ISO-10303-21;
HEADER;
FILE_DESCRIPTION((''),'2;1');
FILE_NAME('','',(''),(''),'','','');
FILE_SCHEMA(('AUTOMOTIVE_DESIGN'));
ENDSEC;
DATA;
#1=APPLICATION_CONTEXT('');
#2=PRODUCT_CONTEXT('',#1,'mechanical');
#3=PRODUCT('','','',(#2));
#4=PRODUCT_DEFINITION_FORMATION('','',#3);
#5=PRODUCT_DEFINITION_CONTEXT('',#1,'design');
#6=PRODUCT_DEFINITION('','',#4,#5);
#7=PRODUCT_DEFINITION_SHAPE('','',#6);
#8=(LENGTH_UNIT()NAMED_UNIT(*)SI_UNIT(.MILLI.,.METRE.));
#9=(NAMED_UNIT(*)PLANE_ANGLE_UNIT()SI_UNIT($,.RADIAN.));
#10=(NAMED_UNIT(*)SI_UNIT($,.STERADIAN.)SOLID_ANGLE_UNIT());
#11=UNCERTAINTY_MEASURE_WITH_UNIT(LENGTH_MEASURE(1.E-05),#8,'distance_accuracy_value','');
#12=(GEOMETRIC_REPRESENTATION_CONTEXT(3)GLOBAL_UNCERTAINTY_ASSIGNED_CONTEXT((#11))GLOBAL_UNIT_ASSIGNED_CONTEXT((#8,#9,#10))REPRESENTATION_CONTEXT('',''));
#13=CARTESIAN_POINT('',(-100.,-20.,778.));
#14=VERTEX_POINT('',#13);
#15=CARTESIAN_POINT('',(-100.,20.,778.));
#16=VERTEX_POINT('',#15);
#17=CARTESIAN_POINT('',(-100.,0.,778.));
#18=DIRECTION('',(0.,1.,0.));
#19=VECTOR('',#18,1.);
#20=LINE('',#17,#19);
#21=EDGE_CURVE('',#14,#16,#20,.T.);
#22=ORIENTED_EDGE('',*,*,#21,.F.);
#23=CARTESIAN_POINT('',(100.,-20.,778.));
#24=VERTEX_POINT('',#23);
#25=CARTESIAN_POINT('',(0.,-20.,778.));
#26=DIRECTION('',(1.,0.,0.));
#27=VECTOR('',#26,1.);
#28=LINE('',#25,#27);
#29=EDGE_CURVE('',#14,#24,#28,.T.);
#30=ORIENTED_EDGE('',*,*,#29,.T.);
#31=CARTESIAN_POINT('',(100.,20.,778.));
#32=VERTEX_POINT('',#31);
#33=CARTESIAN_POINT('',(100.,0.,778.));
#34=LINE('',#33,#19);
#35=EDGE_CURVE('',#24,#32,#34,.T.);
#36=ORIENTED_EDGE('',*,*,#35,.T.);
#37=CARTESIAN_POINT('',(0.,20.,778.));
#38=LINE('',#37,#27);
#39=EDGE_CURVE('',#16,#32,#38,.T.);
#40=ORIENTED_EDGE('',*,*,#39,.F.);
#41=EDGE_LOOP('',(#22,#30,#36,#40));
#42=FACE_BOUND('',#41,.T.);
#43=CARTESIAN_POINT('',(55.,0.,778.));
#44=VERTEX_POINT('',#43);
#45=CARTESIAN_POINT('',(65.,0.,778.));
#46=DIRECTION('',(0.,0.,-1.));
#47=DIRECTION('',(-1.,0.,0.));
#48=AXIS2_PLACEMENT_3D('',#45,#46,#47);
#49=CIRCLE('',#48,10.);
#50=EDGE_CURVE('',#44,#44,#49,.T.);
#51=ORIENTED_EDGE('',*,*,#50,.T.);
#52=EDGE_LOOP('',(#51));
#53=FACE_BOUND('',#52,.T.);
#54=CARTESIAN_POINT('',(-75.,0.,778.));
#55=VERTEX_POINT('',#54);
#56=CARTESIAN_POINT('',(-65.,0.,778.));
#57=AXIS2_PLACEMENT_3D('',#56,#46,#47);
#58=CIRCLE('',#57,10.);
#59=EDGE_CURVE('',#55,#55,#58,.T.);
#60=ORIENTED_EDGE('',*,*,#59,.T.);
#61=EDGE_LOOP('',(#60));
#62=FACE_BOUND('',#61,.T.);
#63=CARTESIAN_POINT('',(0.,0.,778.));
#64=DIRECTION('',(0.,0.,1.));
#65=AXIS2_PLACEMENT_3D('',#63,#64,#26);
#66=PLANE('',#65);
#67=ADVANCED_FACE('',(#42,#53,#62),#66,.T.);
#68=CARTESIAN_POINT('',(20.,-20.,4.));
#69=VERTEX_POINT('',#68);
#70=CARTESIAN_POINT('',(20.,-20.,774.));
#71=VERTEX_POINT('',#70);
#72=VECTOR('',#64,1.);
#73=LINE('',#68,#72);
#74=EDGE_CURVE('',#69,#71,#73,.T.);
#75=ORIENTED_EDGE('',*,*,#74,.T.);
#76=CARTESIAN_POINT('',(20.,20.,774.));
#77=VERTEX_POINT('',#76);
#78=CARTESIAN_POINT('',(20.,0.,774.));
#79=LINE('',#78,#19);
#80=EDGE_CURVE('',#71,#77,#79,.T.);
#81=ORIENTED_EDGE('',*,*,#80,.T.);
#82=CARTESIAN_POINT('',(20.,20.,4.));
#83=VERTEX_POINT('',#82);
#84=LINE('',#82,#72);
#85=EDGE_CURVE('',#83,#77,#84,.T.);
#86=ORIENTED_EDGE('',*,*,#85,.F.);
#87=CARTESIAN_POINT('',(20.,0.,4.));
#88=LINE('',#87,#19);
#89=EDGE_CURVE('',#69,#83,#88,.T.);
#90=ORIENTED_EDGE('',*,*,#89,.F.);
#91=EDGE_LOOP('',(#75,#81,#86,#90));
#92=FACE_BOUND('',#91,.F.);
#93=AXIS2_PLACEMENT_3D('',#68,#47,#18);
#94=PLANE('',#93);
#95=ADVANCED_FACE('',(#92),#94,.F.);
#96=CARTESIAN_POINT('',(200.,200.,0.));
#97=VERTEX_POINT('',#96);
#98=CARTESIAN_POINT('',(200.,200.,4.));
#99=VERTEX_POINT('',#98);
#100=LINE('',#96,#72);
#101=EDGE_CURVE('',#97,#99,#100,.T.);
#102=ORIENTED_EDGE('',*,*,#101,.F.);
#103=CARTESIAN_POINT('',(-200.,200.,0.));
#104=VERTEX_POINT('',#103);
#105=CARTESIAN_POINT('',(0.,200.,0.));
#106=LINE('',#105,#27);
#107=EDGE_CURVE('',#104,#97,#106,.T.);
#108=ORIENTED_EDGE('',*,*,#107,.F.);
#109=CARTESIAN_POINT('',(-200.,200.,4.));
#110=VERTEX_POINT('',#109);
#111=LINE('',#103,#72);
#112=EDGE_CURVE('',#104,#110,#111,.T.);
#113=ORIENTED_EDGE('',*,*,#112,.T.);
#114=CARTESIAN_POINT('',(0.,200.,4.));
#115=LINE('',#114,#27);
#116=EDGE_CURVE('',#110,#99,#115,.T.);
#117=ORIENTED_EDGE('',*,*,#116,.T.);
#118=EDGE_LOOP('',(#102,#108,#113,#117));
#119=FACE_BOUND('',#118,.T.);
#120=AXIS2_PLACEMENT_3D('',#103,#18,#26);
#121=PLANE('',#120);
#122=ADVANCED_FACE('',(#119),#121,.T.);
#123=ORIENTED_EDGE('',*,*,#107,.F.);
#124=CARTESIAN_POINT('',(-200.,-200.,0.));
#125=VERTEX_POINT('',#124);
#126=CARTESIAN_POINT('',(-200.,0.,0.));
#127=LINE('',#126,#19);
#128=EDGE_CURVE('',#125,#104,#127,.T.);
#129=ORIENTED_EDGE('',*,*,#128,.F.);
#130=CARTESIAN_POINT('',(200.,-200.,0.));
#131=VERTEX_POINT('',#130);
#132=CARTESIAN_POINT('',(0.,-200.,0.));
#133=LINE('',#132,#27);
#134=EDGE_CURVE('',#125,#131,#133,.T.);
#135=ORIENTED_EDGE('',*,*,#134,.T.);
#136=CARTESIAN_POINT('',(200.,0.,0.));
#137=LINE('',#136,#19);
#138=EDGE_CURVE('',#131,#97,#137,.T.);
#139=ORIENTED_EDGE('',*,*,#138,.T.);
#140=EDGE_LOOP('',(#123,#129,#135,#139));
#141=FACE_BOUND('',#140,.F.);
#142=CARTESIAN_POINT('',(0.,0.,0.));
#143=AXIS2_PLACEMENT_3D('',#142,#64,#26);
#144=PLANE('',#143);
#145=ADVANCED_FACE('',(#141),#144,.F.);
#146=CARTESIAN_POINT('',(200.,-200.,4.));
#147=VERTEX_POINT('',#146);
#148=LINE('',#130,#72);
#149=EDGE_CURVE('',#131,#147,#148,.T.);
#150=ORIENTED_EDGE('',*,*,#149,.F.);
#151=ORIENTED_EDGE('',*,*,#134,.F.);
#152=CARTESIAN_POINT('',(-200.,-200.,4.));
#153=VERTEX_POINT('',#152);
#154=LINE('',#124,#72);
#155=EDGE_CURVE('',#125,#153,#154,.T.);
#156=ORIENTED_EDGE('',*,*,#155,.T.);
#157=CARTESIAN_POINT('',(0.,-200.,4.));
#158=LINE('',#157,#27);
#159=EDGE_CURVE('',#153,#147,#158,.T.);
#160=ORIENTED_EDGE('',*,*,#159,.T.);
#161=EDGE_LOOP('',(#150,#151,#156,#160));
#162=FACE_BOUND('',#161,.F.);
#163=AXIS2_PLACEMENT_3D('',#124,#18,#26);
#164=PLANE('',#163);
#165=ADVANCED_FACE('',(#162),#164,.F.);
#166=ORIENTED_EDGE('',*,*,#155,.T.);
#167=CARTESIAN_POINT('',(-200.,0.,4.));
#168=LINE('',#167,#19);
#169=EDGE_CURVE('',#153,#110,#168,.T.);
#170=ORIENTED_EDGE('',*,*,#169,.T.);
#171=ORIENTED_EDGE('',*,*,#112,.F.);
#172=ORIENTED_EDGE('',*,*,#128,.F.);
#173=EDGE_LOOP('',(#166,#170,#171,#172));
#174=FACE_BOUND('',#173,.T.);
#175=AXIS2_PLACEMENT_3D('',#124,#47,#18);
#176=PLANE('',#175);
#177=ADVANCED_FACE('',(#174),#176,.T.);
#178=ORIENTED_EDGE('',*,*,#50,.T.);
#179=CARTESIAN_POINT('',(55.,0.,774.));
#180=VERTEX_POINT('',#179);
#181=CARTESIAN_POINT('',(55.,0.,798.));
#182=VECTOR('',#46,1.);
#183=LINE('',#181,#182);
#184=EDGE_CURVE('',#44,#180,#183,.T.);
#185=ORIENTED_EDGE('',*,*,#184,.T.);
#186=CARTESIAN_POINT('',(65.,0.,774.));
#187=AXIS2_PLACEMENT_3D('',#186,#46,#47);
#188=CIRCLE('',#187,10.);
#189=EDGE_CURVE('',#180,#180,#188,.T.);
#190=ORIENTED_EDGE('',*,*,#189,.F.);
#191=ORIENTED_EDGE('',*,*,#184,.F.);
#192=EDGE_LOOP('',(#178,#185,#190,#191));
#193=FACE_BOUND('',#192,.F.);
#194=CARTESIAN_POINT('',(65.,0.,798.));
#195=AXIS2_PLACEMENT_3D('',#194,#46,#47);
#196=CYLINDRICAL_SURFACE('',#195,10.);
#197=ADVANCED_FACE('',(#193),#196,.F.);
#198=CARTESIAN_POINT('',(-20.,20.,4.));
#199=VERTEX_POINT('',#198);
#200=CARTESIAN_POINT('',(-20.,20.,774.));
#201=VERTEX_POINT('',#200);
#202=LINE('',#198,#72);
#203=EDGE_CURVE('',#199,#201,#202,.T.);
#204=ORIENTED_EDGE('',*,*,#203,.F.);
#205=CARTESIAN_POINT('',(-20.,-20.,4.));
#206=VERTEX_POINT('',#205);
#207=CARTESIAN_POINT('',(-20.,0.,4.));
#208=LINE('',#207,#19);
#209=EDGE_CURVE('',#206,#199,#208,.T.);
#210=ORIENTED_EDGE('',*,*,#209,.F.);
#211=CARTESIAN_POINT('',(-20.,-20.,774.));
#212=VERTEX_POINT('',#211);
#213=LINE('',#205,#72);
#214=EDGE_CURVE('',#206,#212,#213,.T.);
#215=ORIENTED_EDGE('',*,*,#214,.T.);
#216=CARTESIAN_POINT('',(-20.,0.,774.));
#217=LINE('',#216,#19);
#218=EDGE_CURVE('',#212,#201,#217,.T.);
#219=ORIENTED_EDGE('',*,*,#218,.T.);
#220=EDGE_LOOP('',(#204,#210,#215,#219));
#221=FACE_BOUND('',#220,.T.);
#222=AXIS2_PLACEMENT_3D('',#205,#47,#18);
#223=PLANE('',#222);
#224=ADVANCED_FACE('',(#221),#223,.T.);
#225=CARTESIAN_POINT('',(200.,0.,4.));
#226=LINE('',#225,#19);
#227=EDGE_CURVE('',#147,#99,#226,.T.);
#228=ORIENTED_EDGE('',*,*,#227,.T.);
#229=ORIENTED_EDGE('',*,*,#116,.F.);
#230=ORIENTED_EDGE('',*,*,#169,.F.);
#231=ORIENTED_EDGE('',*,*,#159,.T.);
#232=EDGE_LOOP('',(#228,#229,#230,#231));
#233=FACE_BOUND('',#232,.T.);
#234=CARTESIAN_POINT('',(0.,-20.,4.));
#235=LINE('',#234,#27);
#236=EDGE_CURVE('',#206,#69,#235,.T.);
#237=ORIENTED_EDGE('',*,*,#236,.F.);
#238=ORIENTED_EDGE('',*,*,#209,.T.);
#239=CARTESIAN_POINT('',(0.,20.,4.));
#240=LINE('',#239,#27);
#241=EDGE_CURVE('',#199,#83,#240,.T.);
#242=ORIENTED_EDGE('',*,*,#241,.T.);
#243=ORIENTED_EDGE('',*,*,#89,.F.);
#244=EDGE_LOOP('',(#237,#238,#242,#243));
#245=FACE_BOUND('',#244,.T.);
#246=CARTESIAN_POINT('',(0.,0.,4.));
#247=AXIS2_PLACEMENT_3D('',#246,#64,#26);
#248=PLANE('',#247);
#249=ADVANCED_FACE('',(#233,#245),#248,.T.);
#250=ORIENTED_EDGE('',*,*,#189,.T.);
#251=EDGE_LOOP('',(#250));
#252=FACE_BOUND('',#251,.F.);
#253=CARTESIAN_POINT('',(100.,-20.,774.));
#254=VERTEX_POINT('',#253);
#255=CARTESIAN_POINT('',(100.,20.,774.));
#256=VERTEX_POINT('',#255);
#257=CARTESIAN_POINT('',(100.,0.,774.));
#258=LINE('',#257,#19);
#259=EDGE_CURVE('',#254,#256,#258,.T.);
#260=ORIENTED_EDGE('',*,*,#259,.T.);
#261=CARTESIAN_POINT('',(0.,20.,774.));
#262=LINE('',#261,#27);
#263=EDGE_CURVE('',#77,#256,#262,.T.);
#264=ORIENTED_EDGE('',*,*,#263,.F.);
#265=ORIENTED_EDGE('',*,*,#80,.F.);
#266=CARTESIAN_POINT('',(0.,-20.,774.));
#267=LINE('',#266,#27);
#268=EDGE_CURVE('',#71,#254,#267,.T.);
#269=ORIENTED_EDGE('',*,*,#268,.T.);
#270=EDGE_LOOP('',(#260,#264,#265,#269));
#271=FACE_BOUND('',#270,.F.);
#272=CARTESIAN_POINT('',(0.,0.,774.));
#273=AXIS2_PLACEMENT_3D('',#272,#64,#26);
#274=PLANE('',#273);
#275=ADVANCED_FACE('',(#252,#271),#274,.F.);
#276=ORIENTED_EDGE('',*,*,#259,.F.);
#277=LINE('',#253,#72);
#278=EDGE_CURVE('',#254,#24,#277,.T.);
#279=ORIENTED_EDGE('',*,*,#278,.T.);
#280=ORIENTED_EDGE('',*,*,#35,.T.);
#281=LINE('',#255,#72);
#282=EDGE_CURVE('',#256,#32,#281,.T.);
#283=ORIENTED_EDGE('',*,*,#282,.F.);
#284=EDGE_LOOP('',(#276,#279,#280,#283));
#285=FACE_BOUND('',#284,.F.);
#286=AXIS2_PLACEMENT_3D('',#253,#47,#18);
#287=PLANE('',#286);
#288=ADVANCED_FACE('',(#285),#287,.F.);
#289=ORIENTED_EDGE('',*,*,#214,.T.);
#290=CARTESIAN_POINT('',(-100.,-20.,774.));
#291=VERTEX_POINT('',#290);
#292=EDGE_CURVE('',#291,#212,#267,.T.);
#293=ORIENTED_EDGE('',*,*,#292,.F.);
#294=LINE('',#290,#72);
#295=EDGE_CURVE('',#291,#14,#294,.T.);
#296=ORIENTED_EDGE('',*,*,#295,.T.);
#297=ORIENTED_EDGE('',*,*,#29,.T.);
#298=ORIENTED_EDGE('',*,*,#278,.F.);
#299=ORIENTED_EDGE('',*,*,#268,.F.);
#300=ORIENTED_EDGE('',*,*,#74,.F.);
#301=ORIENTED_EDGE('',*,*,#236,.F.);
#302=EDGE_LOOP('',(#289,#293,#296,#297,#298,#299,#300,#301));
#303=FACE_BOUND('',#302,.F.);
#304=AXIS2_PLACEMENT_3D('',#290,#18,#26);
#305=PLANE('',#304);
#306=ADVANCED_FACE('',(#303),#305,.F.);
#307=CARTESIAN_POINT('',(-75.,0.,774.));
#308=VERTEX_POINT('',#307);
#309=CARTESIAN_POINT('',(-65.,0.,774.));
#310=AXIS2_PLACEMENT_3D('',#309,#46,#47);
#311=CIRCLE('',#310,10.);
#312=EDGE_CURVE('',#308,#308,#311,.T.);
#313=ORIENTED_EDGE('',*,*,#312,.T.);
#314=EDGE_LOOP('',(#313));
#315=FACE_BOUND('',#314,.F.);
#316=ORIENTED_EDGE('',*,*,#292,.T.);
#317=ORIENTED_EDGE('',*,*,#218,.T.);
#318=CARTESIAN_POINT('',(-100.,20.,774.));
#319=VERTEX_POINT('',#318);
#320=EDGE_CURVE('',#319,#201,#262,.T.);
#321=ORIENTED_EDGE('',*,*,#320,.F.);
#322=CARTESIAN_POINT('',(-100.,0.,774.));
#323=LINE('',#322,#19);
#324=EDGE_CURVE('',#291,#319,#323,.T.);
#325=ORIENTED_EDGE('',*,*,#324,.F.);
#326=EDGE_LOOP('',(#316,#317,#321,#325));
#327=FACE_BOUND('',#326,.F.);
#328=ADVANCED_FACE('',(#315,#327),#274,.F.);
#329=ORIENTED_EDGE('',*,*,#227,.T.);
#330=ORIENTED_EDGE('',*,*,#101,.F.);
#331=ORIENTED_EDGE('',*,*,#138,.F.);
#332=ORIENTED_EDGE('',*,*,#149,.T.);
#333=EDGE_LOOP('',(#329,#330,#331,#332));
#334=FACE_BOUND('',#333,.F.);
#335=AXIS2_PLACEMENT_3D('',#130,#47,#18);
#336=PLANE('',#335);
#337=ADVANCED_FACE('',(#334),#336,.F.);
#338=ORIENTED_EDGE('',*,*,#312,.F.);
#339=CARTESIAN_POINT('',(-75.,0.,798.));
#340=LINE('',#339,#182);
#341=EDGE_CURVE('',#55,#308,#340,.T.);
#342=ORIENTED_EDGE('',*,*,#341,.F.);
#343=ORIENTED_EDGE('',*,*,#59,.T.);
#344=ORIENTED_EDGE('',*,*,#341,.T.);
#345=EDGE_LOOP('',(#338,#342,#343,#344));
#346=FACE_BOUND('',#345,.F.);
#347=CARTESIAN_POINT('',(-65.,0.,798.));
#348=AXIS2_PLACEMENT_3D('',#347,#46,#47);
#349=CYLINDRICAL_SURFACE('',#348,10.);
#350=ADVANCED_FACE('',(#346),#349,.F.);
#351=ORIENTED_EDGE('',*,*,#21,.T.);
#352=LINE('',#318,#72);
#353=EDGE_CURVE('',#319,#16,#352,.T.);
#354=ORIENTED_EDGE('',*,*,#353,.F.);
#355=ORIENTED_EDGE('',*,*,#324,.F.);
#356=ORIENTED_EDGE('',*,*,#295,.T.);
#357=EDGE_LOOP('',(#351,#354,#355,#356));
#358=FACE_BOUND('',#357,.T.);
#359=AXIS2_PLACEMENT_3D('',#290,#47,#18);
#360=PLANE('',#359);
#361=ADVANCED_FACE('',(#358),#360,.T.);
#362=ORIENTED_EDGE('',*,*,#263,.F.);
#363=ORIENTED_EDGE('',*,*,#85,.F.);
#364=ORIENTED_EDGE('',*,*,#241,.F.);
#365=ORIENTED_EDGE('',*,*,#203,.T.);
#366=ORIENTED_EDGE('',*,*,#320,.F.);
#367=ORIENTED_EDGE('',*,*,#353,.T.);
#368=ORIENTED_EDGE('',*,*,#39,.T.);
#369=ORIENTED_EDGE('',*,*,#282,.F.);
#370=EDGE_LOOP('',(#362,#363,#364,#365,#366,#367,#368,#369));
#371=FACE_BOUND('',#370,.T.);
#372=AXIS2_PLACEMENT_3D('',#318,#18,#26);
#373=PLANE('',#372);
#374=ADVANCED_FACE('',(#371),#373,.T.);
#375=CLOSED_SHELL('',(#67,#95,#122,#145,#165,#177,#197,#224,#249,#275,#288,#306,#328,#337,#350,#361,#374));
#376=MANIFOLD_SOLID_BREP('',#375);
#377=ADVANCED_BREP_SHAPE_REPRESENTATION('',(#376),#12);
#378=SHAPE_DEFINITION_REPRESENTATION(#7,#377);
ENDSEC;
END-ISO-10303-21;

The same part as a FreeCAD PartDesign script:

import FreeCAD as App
import Part
import Sketcher

V = App.Vector


def add_polygon(sketch, points):
    """Adds a closed chain of lines whose ends are joined by coincident constraints."""
    first, n = sketch.GeometryCount, len(points)
    for a, b in zip(points, points[1:] + points[:1]):
        sketch.addGeometry(Part.LineSegment(App.Vector(*a, 0), App.Vector(*b, 0)), False)
    for i in range(n):
        sketch.addConstraint(Sketcher.Constraint("Coincident", first + i, 2, first + (i + 1) % n, 1))

doc = App.newDocument("Part")
body = doc.addObject("PartDesign::Body", "Body")

# Sketch on XY plane
sketch1 = doc.addObject("Sketcher::SketchObject", "Sketch")
body.addObject(sketch1)
sketch1.AttachmentSupport = (doc.XY_Plane, [""])
sketch1.MapMode = "FlatFace"
add_polygon(sketch1, [(-200, 200), (-200, -200), (200, -200), (200, 200)])  # lines 0-3
sketch1.addConstraint([
    Sketcher.Constraint("Vertical", 0),
    Sketcher.Constraint("Horizontal", 1),
    Sketcher.Constraint("Vertical", 2),
    Sketcher.Constraint("Horizontal", 3),
    Sketcher.Constraint("Symmetric", 0, 2, 2, 2, -1, 1),
    Sketcher.Constraint("Equal", 3, 0),
    Sketcher.Constraint("DistanceX", 1, 1, 1, 2, 400.0),
])
pad1 = doc.addObject("PartDesign::Pad", "Pad")
body.addObject(pad1)
pad1.Profile = sketch1
pad1.Length = 4

# Sketch on XY plane
sketch2 = doc.addObject("Sketcher::SketchObject", "Sketch001")
body.addObject(sketch2)
sketch2.AttachmentSupport = (doc.XY_Plane, [""])
sketch2.MapMode = "FlatFace"
sketch2.AttachmentOffset = App.Placement(V(0, 0, 4), App.Rotation())
add_polygon(sketch2, [(-20, 20), (-20, -20), (20, -20), (20, 20)])  # lines 0-3
sketch2.addConstraint([
    Sketcher.Constraint("Vertical", 0),
    Sketcher.Constraint("Horizontal", 1),
    Sketcher.Constraint("Vertical", 2),
    Sketcher.Constraint("Horizontal", 3),
    Sketcher.Constraint("Symmetric", 0, 2, 2, 2, -1, 1),
    Sketcher.Constraint("Equal", 3, 0),
    Sketcher.Constraint("DistanceX", 1, 1, 1, 2, 40.0),
])
pad2 = doc.addObject("PartDesign::Pad", "Pad001")
body.addObject(pad2)
pad2.Profile = sketch2
pad2.Length = 770

# Sketch on XY plane
sketch3 = doc.addObject("Sketcher::SketchObject", "Sketch002")
body.addObject(sketch3)
sketch3.AttachmentSupport = (doc.XY_Plane, [""])
sketch3.MapMode = "FlatFace"
sketch3.AttachmentOffset = App.Placement(V(0, 0, 774), App.Rotation())
add_polygon(sketch3, [(-100, 20), (-100, -20), (100, -20), (100, 20)])  # lines 0-3
sketch3.addConstraint([
    Sketcher.Constraint("Vertical", 0),
    Sketcher.Constraint("Horizontal", 1),
    Sketcher.Constraint("Vertical", 2),
    Sketcher.Constraint("Horizontal", 3),
    Sketcher.Constraint("Symmetric", 0, 2, 2, 2, -1, 1),
    Sketcher.Constraint("DistanceX", 1, 1, 1, 2, 200.0),
    Sketcher.Constraint("DistanceY", 0, 2, 0, 1, 40.0),
])
pad3 = doc.addObject("PartDesign::Pad", "Pad002")
body.addObject(pad3)
pad3.Profile = sketch3
pad3.Length = 4

# Sketch on XY plane
sketch4 = doc.addObject("Sketcher::SketchObject", "Sketch003")
body.addObject(sketch4)
sketch4.AttachmentSupport = (doc.XY_Plane, [""])
sketch4.MapMode = "FlatFace"
sketch4.AttachmentOffset = App.Placement(V(0, 0, 778), App.Rotation())
sketch4.addGeometry(Part.Circle(V(-65, 0, 0), V(0, 0, 1), 10), False)
sketch4.addConstraint([
    Sketcher.Constraint("PointOnObject", 0, 3, -1),
    Sketcher.Constraint("Diameter", 0, 20.0),
    Sketcher.Constraint("DistanceX", 0, 3, -1, 1, 65.0),
])
doc.recompute()
hole = doc.addObject("PartDesign::Hole", "Hole")
body.addObject(hole)
hole.Profile = sketch4
hole.ThreadType = "None"
hole.Diameter = 20
hole.DepthType = "Dimension"
hole.Depth = 20
hole.DrillPoint = "Flat"

# Sketch on XY plane
sketch5 = doc.addObject("Sketcher::SketchObject", "Sketch004")
body.addObject(sketch5)
sketch5.AttachmentSupport = (doc.XY_Plane, [""])
sketch5.MapMode = "FlatFace"
sketch5.AttachmentOffset = App.Placement(V(0, 0, 778), App.Rotation())
sketch5.addGeometry(Part.Circle(V(65, 0, 0), V(0, 0, 1), 10), False)
sketch5.addConstraint([
    Sketcher.Constraint("PointOnObject", 0, 3, -1),
    Sketcher.Constraint("Diameter", 0, 20.0),
    Sketcher.Constraint("DistanceX", -1, 1, 0, 3, 65.0),
])
doc.recompute()
hole2 = doc.addObject("PartDesign::Hole", "Hole001")
body.addObject(hole2)
hole2.Profile = sketch5
hole2.ThreadType = "None"
hole2.Diameter = 20
hole2.DepthType = "Dimension"
hole2.Depth = 20
hole2.DrillPoint = "Flat"

doc.recompute()
